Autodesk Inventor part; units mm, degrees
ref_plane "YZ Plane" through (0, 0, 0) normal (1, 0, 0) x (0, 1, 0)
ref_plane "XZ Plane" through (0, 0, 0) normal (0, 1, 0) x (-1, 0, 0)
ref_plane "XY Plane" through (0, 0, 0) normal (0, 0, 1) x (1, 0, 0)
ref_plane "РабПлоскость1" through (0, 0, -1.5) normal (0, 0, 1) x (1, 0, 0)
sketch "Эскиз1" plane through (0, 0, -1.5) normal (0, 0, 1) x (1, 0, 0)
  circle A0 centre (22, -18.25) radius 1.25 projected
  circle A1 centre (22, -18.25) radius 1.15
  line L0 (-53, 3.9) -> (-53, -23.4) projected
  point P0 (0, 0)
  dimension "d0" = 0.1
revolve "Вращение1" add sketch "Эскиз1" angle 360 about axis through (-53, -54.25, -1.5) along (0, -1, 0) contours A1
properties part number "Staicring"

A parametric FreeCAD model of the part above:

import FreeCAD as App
import Part
import Sketcher

V = App.Vector

doc = App.newDocument("Part")
body = doc.addObject("PartDesign::Body", "Body")

# Sketch on XY plane
sketch1 = doc.addObject("Sketcher::SketchObject", "Sketch")
body.addObject(sketch1)
sketch1.AttachmentSupport = (doc.XY_Plane, [""])
sketch1.MapMode = "FlatFace"
sketch1.AttachmentOffset = App.Placement(V(0, 0, -1.5), App.Rotation())
sketch1.addGeometry(Part.Circle(V(22, -18.2, 0), V(0, 0, 1), 1.1), False)
sketch1.addGeometry(Part.LineSegment(V(-53, -18.2, 0), V(-53, -28.2, 0)), True)  # axis
sketch1.addConstraint(Sketcher.Constraint("Vertical", 1))
sketch1.addConstraint(Sketcher.Constraint("Horizontal", 0, 3, 1, 1))
sketch1.addConstraint(Sketcher.Constraint("Diameter", 0, 2.3))
sketch1.addConstraint(Sketcher.Constraint("DistanceY", 1, 2, 1, 1, 10.0))
sketch1.addConstraint(Sketcher.Constraint("DistanceX", -1, 1, 0, 3, 22.0))
sketch1.addConstraint(Sketcher.Constraint("DistanceX", 1, 1, -1, 1, 53.0))
sketch1.addConstraint(Sketcher.Constraint("DistanceY", 0, 3, -1, 1, 18.25))
revolution = doc.addObject("PartDesign::Revolution", "Revolution")
body.addObject(revolution)
revolution.Profile = sketch1
revolution.ReferenceAxis = (sketch1, ["Axis0"])
revolution.Angle = 360

doc.recompute()
